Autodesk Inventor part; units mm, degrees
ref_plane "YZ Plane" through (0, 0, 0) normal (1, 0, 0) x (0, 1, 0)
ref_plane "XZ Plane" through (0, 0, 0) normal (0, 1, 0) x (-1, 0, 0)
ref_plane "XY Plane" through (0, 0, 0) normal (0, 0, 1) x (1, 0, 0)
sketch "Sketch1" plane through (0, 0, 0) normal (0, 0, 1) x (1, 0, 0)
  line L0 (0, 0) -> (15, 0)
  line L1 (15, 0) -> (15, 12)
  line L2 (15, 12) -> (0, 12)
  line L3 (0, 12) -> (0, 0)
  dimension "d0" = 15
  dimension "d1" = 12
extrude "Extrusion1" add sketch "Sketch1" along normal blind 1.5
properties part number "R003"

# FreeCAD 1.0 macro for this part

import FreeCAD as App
import Part
import Sketcher


def add_polygon(sketch, points):
    """Adds a closed chain of lines whose ends are joined by coincident constraints."""
    first, n = sketch.GeometryCount, len(points)
    for a, b in zip(points, points[1:] + points[:1]):
        sketch.addGeometry(Part.LineSegment(App.Vector(*a, 0), App.Vector(*b, 0)), False)
    for i in range(n):
        sketch.addConstraint(Sketcher.Constraint("Coincident", first + i, 2, first + (i + 1) % n, 1))

doc = App.newDocument("Part")
body = doc.addObject("PartDesign::Body", "Body")

# Sketch on XY plane
sketch1 = doc.addObject("Sketcher::SketchObject", "Sketch")
body.addObject(sketch1)
sketch1.AttachmentSupport = (doc.XY_Plane, [""])
sketch1.MapMode = "FlatFace"
add_polygon(sketch1, [(0, 12), (0, 0), (15, 0), (15, 12)])  # lines 0-3
sketch1.addConstraint([
    Sketcher.Constraint("Vertical", 0),
    Sketcher.Constraint("Horizontal", 1),
    Sketcher.Constraint("Vertical", 2),
    Sketcher.Constraint("Horizontal", 3),
    Sketcher.Constraint("Coincident", 0, 2, -1, 1),
    Sketcher.Constraint("DistanceX", 1, 1, 1, 2, 15.0),
    Sketcher.Constraint("DistanceY", 0, 2, 0, 1, 12.0),
])
pad1 = doc.addObject("PartDesign::Pad", "Pad")
body.addObject(pad1)
pad1.Profile = sketch1
pad1.Length = 1.5

doc.recompute()
